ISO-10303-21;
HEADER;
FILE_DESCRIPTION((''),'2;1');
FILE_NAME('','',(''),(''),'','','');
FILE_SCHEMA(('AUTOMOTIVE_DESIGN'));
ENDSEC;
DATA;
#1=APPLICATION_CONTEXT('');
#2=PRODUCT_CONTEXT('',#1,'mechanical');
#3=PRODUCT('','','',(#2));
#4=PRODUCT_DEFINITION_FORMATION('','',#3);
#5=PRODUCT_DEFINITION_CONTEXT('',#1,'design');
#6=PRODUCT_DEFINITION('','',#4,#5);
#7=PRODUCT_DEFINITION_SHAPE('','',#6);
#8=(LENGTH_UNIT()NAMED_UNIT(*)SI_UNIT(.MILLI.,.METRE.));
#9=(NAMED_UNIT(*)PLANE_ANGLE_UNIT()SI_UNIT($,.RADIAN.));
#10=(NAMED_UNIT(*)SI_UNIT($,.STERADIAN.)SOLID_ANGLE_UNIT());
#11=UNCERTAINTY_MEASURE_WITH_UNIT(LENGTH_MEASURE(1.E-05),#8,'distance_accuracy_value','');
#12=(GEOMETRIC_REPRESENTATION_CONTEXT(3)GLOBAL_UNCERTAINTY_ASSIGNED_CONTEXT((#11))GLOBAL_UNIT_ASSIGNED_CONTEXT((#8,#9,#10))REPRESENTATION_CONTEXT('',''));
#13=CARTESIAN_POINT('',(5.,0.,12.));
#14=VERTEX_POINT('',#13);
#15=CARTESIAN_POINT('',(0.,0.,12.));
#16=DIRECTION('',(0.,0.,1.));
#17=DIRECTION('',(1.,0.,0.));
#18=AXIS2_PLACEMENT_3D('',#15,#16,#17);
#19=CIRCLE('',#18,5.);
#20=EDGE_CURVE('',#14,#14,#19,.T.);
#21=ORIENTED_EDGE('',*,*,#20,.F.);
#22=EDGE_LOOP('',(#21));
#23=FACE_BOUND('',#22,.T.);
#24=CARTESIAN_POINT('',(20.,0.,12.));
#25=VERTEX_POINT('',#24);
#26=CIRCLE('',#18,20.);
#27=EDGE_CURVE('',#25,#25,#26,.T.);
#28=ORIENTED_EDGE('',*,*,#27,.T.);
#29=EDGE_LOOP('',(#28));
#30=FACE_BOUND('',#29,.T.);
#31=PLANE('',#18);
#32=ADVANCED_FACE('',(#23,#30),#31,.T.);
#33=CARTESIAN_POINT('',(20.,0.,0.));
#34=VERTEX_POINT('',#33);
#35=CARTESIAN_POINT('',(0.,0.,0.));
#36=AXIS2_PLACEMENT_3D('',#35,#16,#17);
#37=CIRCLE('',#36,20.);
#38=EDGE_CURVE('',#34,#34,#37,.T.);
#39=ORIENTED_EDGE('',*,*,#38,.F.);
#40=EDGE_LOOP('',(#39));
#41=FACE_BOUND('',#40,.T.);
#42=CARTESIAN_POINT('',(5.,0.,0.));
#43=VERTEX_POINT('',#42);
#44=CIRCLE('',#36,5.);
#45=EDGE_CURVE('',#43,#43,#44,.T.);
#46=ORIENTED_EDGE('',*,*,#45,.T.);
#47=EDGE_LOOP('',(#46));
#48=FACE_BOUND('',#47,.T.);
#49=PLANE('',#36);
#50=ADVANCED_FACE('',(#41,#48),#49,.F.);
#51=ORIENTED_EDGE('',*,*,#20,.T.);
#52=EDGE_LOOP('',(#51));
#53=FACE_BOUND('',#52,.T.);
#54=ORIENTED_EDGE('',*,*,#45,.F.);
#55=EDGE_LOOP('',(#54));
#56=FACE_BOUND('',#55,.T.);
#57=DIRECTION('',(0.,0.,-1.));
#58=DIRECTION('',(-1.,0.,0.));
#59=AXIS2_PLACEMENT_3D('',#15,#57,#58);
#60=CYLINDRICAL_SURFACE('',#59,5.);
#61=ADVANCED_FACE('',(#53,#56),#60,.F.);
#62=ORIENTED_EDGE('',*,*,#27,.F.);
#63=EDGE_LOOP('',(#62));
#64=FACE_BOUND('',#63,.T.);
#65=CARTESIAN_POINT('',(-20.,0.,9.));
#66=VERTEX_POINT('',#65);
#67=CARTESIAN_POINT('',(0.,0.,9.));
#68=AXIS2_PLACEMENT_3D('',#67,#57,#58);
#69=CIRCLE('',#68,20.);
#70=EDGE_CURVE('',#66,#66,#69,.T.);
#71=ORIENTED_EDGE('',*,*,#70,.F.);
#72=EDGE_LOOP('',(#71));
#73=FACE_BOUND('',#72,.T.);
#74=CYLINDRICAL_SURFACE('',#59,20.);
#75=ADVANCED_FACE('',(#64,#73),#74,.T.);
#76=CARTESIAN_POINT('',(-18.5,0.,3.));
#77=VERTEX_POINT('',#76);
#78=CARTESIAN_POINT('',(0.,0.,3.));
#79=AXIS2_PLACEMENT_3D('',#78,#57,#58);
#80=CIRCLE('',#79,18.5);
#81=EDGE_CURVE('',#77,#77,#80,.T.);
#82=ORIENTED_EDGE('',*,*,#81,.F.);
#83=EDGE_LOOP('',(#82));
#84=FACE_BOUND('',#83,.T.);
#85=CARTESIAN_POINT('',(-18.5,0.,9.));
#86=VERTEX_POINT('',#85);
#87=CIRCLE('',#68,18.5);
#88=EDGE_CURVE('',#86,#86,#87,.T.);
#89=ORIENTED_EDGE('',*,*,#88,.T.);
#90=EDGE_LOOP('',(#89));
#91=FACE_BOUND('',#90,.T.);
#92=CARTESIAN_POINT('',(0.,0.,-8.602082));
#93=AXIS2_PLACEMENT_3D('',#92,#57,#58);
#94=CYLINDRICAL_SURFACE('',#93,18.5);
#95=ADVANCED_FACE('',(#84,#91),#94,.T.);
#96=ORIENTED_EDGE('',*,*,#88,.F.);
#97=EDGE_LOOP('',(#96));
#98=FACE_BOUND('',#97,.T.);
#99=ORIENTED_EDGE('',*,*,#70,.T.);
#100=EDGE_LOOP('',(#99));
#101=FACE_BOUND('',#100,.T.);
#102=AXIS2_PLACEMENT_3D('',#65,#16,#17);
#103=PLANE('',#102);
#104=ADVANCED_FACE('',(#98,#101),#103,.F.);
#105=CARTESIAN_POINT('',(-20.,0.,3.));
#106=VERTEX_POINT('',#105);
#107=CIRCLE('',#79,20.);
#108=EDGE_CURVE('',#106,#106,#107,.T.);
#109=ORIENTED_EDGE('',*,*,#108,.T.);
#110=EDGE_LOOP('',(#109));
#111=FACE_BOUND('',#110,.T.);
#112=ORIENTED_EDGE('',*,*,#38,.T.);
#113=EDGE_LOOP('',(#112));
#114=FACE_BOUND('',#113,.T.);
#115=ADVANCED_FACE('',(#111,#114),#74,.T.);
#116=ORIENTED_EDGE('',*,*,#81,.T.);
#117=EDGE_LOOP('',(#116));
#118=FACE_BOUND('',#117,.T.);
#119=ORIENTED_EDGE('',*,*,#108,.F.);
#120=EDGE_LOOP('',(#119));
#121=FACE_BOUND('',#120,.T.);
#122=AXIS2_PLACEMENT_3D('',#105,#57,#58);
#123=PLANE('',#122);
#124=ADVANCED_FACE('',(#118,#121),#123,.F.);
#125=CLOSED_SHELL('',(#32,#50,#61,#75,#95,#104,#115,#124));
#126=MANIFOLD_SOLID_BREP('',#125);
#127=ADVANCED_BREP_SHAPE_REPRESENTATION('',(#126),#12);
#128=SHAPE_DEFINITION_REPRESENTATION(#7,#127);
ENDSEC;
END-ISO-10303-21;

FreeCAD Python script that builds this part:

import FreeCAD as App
import Part
import Sketcher

V = App.Vector
Q = App.Units.Quantity

doc = App.newDocument("Part")
params = doc.addObject("Spreadsheet::Sheet", "Params")
for row, (alias, value) in enumerate([
    ("sketch1_diameter", "40 mm"),
    ("sketch1_diameter2", "10 mm"),
    ("pad1_length", "12 mm"),
    ("sketch2_height", "6 mm"),
    ("sketch2_width", "1.5 mm"),
    ("groove_angle", "360 deg"),
], start=1):
    params.set(f"A{row}", alias)
    params.set(f"B{row}", "=" + value)
    params.setAlias(f"B{row}", alias)

body = doc.addObject("PartDesign::Body", "Body")

# Sketch on XY plane
sketch1 = body.newObject("Sketcher::SketchObject", "Sketch")
sketch1.AttachmentSupport = (doc.getObject("XY_Plane"), [""])
sketch1.MapMode = "FlatFace"
sketch1.addGeometry([
    Part.Circle(V(0, 0, 0), V(0, 0, 1), 20),
    Part.Circle(V(0, 0, 0), V(0, 0, 1), 5),
], False)
sketch1.addConstraint([
    Sketcher.Constraint("Coincident", 0, 3, -1, 1),
    Sketcher.Constraint("Coincident", 1, 3, -1, 1),
    Sketcher.Constraint("Diameter", 0, Q("40 mm")),
    Sketcher.Constraint("Diameter", 1, Q("10 mm")),
])
sketch1.setExpression("Constraints[2]", "Params.sketch1_diameter")
sketch1.setExpression("Constraints[3]", "Params.sketch1_diameter2")
pad1 = body.newObject("PartDesign::Pad", "Pad")
pad1.Profile = sketch1
pad1.setExpression("Length", "Params.pad1_length")

# Sketch on XZ plane
sketch2 = body.newObject("Sketcher::SketchObject", "Sketch001")
sketch2.AttachmentSupport = (doc.getObject("XZ_Plane"), [""])
sketch2.MapMode = "FlatFace"
sketch2.addGeometry([
    Part.LineSegment(V(-20, 3, 0), V(-20, 9, 0)),
    Part.LineSegment(V(-20, 9, 0), V(-18.5, 9, 0)),
    Part.LineSegment(V(-18.5, 9, 0), V(-18.5, 3, 0)),
    Part.LineSegment(V(-18.5, 3, 0), V(-20, 3, 0)),
], False)
sketch2.addConstraint([
    Sketcher.Constraint("Coincident", 0, 2, 1, 1),
    Sketcher.Constraint("Coincident", 1, 2, 2, 1),
    Sketcher.Constraint("Coincident", 2, 2, 3, 1),
    Sketcher.Constraint("Coincident", 3, 2, 0, 1),
    Sketcher.Constraint("Vertical", 0),
    Sketcher.Constraint("Horizontal", 1),
    Sketcher.Constraint("Vertical", 2),
    Sketcher.Constraint("Horizontal", 3),
    Sketcher.Constraint("DistanceY", 0, 1, 0, 2, Q("6 mm")),
    Sketcher.Constraint("DistanceX", 1, 1, 1, 2, Q("1.5 mm")),
    Sketcher.Constraint("DistanceX", 0, 2, -1, 1, Q("20 mm")),
    Sketcher.Constraint("DistanceY", -1, 1, 0, 2, Q("9 mm")),
])
sketch2.setExpression("Constraints[8]", "Params.sketch2_height")
sketch2.setExpression("Constraints[9]", "Params.sketch2_width")
groove = body.newObject("PartDesign::Groove", "Groove")
groove.Profile = sketch2
groove.ReferenceAxis = (sketch2, ["V_Axis"])
groove.setExpression("Angle", "Params.groove_angle")

doc.recompute()
